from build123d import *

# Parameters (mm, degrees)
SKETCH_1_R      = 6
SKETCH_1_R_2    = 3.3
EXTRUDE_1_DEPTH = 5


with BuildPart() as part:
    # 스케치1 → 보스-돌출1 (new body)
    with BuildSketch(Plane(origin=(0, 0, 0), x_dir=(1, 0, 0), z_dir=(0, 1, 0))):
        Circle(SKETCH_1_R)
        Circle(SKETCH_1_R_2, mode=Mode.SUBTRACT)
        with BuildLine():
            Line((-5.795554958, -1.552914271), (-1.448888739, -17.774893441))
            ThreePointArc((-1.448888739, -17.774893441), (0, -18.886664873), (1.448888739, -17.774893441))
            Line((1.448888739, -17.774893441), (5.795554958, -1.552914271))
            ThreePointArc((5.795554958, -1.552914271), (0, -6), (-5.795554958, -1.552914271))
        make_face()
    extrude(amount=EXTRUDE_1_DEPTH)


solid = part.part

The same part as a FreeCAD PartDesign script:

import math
import FreeCAD as App
import Part
import Sketcher
Q = App.Units.Quantity

doc = App.newDocument("Part")
params = doc.addObject("Spreadsheet::Sheet", "Params")
for row, (alias, value) in enumerate([
    ("sketch1_radius", "6 mm"),
    ("sketch1_diameter", "6.6 mm"),
    ("sketch1_radius2", "1.5 mm"),
    ("pad1_length", "5 mm"),
], start=1):
    params.set(f"A{row}", alias)
    params.set(f"B{row}", "=" + value)
    params.setAlias(f"B{row}", alias)

body = doc.addObject("PartDesign::Body", "Body")

sketch1 = body.newObject("Sketcher::SketchObject", "Sketch")
sketch1.AttachmentSupport = (doc.getObject("XZ_Plane"), [""])
sketch1.MapMode = "FlatFace"
sketch1.addGeometry([
    Part.LineSegment(App.Vector(-5.8, 1.6, 0), App.Vector(-1.4, 17.8, 0)),
    Part.ArcOfCircle(Part.Circle(App.Vector(0, 17.4, 0), App.Vector(0, 0, 1), 1.5), math.radians(15), math.radians(165)),
    Part.LineSegment(App.Vector(1.4, 17.8, 0), App.Vector(5.8, 1.6, 0)),
    Part.ArcOfCircle(Part.Circle(App.Vector(0, 0, 0), App.Vector(0, 0, 1), 6), math.radians(165), math.radians(375)),
    Part.Circle(App.Vector(0, 0, 0), App.Vector(0, 0, 1), 3.3),
], False)
sketch1.addConstraint([
    Sketcher.Constraint("Tangent", 0, 2, 1, 2),
    Sketcher.Constraint("Tangent", 1, 1, 2, 1),
    Sketcher.Constraint("Tangent", 2, 2, 3, 2),
    Sketcher.Constraint("Tangent", 3, 1, 0, 1),
    Sketcher.Constraint("Coincident", 3, 3, -1, 1),
    Sketcher.Constraint("Coincident", 4, 3, -1, 1),
    Sketcher.Constraint("PointOnObject", 1, 3, -2),
    Sketcher.Constraint("Radius", 3, 6.0),
    Sketcher.Constraint("Diameter", 4, 6.6),
    Sketcher.Constraint("Radius", 1, 1.5),
    Sketcher.Constraint("Angle", 0, Q("75 deg")),
])
sketch1.setExpression("Constraints[7]", "Params.sketch1_radius")
sketch1.setExpression("Constraints[8]", "Params.sketch1_diameter")
sketch1.setExpression("Constraints[9]", "Params.sketch1_radius2")
pad1 = body.newObject("PartDesign::Pad", "Pad")
pad1.Profile = sketch1
pad1.setExpression("Length", "Params.pad1_length")
pad1.Reversed = True

doc.recompute()
